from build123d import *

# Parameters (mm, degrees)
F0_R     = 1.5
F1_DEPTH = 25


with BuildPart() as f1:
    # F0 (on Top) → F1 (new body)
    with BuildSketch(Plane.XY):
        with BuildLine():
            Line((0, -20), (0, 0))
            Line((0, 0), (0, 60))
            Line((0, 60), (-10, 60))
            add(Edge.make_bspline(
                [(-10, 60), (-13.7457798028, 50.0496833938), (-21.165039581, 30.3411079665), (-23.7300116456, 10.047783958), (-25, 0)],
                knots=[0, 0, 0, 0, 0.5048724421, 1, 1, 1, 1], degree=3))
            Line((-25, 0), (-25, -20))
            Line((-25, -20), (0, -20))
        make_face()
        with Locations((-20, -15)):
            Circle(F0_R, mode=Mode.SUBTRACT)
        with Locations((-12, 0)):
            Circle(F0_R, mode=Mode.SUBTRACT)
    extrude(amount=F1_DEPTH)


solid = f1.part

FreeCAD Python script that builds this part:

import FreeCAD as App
import Part
import Sketcher

V = App.Vector
Q = App.Units.Quantity

doc = App.newDocument("Part")
body = doc.addObject("PartDesign::Body", "Body")

# Sketch on XY plane
sketch1 = body.newObject("Sketcher::SketchObject", "Sketch")
sketch1.AttachmentSupport = (doc.getObject("XY_Plane"), [""])
sketch1.MapMode = "FlatFace"
sketch1.addGeometry(Part.LineSegment(V(0, -20, 0), V(0, 60, 0)), False)
sketch1.addGeometry(Part.LineSegment(V(0, 60, 0), V(-10, 60, 0)), False)
sketch1.addGeometry(Part.BSplineCurve([V(-10, 60, 0), V(-13.74578, 50.049683, 0), V(-21.16504, 30.341108, 0), V(-23.730012, 10.047784, 0), V(-25, 0, 0)], [4, 1, 4], [0, 0.504872442, 1], False, 3, [1, 1, 1, 1, 1], False), False)
sketch1.addGeometry(Part.LineSegment(V(-25, 0, 0), V(-25, -20, 0)), False)
sketch1.addGeometry(Part.LineSegment(V(-25, -20, 0), V(0, -20, 0)), False)
sketch1.addGeometry(Part.Circle(V(-20, -15, 0), V(0, 0, 1), 1.5), False)
sketch1.addGeometry(Part.Circle(V(-12, 0, 0), V(0, 0, 1), 1.5), False)
sketch1.addConstraint(Sketcher.Constraint("Block", 2))
sketch1.addConstraint(Sketcher.Constraint("Coincident", 0, 2, 1, 1))
sketch1.addConstraint(Sketcher.Constraint("Coincident", 1, 2, 2, 1))
sketch1.addConstraint(Sketcher.Constraint("Coincident", 2, 2, 3, 1))
sketch1.addConstraint(Sketcher.Constraint("Coincident", 3, 2, 4, 1))
sketch1.addConstraint(Sketcher.Constraint("Coincident", 4, 2, 0, 1))
sketch1.addConstraint(Sketcher.Constraint("Vertical", 0))
sketch1.addConstraint(Sketcher.Constraint("Horizontal", 1))
sketch1.addConstraint(Sketcher.Constraint("Vertical", 3))
sketch1.addConstraint(Sketcher.Constraint("Horizontal", 4))
sketch1.addConstraint(Sketcher.Constraint("Equal", 5, 6))
sketch1.addConstraint(Sketcher.Constraint("PointOnObject", 6, 3, -1))
sketch1.addConstraint(Sketcher.Constraint("PointOnObject", 0, 2, -2))
sketch1.addConstraint(Sketcher.Constraint("Diameter", 5, Q("3 mm")))
sketch1.addConstraint(Sketcher.Constraint("DistanceY", 0, 1, 0, 2, Q("80 mm")))
sketch1.addConstraint(Sketcher.Constraint("DistanceX", 5, 3, -1, 1, Q("20 mm")))
sketch1.addConstraint(Sketcher.Constraint("DistanceY", 5, 3, -1, 1, Q("15 mm")))
sketch1.addConstraint(Sketcher.Constraint("DistanceX", 6, 3, -1, 1, Q("12 mm")))
pad1 = body.newObject("PartDesign::Pad", "Pad")
pad1.Profile = sketch1
pad1.Length = 25

doc.recompute()
